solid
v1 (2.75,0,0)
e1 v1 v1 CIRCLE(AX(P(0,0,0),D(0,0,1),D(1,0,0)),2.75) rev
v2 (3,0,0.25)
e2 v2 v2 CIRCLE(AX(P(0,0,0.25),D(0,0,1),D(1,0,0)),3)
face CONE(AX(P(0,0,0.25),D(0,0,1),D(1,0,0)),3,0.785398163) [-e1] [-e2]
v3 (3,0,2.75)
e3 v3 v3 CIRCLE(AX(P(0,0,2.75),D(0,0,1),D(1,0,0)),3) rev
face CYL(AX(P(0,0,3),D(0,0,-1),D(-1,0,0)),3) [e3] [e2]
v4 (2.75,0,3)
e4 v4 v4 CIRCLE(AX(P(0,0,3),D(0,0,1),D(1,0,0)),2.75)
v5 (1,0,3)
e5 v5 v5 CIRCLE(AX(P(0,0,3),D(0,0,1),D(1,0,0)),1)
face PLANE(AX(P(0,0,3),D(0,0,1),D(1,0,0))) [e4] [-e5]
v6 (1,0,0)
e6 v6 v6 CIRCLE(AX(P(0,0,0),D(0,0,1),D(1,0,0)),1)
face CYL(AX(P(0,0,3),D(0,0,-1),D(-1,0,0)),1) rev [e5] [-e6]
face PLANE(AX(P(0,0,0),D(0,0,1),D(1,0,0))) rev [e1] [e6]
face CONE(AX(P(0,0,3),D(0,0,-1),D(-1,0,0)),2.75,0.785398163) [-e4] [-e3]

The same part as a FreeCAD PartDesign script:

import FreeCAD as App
import Part
import Sketcher

V = App.Vector
Q = App.Units.Quantity


def edges_at(feature, points):
    """Names of the edges that pass closest to the given points."""
    edges = feature.Shape.Edges
    near = lambda p: min(range(len(edges)), key=lambda i: edges[i].distToShape(Part.Vertex(*p))[0])
    return sorted({f"Edge{near(p) + 1}" for p in points})

doc = App.newDocument("Part")
body = doc.addObject("PartDesign::Body", "Body")

sketch1 = body.newObject("Sketcher::SketchObject", "Sketch")
sketch1.AttachmentSupport = (doc.getObject("XY_Plane"), [""])
sketch1.MapMode = "FlatFace"
sketch1.addGeometry(Part.Circle(V(0, 0, 0), V(0, 0, 1), 3), False)
sketch1.addGeometry(Part.Circle(V(0, 0, 0), V(0, 0, 1), 1), False)
sketch1.addConstraint(Sketcher.Constraint("Coincident", 0, 3, -1, 1))
sketch1.addConstraint(Sketcher.Constraint("Coincident", 1, 3, -1, 1))
sketch1.addConstraint(Sketcher.Constraint("Diameter", 0, Q("6 mm")))
sketch1.addConstraint(Sketcher.Constraint("Diameter", 1, Q("2 mm")))
pad1 = body.newObject("PartDesign::Pad", "Pad")
pad1.Profile = sketch1
pad1.Length = 3
doc.recompute()

chamfer = body.newObject("PartDesign::Chamfer", "Chamfer")
chamfer.Base = (pad1, edges_at(pad1, [(-3, 0, 0), (-3, 0, 3)]))
chamfer.Size = 0.25

doc.recompute()
